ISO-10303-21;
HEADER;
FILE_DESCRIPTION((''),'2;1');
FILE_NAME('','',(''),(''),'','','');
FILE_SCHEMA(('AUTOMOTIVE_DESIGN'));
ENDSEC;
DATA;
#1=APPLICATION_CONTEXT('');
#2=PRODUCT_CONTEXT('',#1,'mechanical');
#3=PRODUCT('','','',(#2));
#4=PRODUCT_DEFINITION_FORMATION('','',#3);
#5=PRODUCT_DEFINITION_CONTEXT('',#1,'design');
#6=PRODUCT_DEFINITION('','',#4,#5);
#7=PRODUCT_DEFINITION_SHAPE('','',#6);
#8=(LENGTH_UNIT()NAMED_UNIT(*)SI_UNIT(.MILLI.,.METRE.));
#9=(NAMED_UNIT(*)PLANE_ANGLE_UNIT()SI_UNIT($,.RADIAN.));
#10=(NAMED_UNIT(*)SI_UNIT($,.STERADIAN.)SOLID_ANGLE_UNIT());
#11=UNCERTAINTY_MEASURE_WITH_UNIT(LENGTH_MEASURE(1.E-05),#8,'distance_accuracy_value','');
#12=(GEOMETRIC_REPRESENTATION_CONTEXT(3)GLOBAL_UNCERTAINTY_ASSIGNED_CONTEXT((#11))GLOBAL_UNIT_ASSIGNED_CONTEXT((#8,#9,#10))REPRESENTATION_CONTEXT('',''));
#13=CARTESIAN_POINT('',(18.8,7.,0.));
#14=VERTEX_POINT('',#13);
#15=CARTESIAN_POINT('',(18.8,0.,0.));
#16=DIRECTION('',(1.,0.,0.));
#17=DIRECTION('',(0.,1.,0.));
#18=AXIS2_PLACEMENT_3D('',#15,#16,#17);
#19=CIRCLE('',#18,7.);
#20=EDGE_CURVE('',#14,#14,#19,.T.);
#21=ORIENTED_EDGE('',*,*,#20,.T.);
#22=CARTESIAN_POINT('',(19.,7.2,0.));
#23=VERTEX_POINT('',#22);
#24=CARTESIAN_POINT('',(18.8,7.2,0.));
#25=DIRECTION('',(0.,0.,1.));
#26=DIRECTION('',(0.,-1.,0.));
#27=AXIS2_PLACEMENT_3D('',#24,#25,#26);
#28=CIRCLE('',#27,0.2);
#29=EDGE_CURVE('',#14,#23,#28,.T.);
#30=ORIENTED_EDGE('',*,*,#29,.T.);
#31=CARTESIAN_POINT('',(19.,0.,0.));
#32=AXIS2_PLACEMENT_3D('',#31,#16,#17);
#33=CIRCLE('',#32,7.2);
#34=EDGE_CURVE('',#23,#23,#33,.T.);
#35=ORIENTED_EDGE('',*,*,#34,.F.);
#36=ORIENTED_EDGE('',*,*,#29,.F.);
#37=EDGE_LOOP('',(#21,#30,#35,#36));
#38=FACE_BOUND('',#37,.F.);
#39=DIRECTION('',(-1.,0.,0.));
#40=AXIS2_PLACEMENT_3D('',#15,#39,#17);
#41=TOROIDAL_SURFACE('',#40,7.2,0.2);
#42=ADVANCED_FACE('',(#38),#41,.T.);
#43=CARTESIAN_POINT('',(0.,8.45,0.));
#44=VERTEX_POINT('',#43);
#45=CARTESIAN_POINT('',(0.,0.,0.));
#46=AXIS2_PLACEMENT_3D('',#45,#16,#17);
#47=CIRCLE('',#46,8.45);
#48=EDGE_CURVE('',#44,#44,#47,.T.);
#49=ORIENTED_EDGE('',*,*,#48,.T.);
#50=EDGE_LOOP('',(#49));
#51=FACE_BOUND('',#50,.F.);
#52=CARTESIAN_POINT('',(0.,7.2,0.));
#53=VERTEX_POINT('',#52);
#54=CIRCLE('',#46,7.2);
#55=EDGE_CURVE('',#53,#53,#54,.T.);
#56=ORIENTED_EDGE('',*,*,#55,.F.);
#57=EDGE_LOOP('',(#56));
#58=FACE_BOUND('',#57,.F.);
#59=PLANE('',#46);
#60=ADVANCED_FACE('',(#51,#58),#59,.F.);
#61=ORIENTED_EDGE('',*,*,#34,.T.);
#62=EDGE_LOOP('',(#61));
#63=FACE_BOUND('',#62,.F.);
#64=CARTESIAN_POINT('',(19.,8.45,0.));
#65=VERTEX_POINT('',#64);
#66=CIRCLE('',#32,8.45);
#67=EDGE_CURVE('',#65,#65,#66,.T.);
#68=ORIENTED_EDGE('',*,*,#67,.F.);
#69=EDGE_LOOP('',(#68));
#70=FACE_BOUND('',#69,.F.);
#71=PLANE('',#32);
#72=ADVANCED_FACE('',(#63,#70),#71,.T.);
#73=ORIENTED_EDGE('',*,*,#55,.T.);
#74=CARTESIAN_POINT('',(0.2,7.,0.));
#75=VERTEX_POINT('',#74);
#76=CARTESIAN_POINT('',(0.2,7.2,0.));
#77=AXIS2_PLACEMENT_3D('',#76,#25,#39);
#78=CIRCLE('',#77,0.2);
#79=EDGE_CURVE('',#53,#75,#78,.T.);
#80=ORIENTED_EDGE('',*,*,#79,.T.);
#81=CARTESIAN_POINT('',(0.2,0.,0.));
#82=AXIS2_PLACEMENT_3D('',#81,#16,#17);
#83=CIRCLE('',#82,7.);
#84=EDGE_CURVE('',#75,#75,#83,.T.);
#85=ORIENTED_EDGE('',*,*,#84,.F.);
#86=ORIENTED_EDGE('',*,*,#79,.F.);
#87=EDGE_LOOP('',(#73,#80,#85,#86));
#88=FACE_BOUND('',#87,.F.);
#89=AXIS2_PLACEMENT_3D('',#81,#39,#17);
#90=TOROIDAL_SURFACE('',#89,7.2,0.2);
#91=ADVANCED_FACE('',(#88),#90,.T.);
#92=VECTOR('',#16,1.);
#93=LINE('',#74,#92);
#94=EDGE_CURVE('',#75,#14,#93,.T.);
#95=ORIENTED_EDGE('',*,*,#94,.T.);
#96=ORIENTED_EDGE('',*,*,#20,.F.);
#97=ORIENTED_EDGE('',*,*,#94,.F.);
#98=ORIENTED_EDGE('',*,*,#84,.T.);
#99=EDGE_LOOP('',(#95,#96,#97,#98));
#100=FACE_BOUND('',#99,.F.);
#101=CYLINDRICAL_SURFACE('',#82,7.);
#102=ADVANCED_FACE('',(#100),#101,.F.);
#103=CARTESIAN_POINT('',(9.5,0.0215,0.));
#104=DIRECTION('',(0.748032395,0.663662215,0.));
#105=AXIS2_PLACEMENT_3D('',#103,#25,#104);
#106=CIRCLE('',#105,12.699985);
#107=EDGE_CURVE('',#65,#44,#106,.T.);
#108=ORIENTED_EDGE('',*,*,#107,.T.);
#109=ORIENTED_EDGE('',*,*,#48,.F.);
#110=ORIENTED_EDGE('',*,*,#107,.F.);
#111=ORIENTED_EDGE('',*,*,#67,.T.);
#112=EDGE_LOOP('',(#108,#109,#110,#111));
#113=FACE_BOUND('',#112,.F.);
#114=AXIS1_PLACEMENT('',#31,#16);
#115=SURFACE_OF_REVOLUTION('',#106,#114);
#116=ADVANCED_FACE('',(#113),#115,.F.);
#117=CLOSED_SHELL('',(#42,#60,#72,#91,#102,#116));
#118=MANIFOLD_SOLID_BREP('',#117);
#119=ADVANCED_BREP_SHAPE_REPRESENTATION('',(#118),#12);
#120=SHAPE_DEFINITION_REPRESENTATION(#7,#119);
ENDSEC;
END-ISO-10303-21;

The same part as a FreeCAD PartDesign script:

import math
import FreeCAD as App
import Part
import Sketcher

doc = App.newDocument("Part")
body = doc.addObject("PartDesign::Body", "Body")

sketch1 = body.newObject("Sketcher::SketchObject", "Sketch")
sketch1.AttachmentSupport = (doc.getObject("XY_Plane"), [""])
sketch1.MapMode = "FlatFace"
sketch1.addGeometry(Part.LineSegment(App.Vector(0, 8.45, 0), App.Vector(0, 7.2, 0)), False)
sketch1.addGeometry(Part.ArcOfCircle(Part.Circle(App.Vector(0.2, 7.2, 0), App.Vector(0, 0, 1), 0.2), math.radians(180), math.radians(270)), False)
sketch1.addGeometry(Part.LineSegment(App.Vector(0.2, 7, 0), App.Vector(18.8, 7, 0)), False)
sketch1.addGeometry(Part.ArcOfCircle(Part.Circle(App.Vector(18.8, 7.2, 0), App.Vector(0, 0, 1), 0.2), math.radians(-90), math.radians(0)), False)
sketch1.addGeometry(Part.LineSegment(App.Vector(19, 7.2, 0), App.Vector(19, 8.45, 0)), False)
sketch1.addGeometry(Part.ArcOfCircle(Part.Circle(App.Vector(9.5, 0.0215, 0), App.Vector(0, 0, 1), 12.699985), math.radians(41.579776), math.radians(138.420224)), False)
sketch1.addConstraint(Sketcher.Constraint("Tangent", 0, 2, 1, 1))
sketch1.addConstraint(Sketcher.Constraint("Tangent", 1, 2, 2, 1))
sketch1.addConstraint(Sketcher.Constraint("Tangent", 2, 2, 3, 1))
sketch1.addConstraint(Sketcher.Constraint("Tangent", 3, 2, 4, 1))
sketch1.addConstraint(Sketcher.Constraint("Coincident", 4, 2, 5, 1))
sketch1.addConstraint(Sketcher.Constraint("Coincident", 5, 2, 0, 1))
sketch1.addConstraint(Sketcher.Constraint("Vertical", 0))
sketch1.addConstraint(Sketcher.Constraint("Horizontal", 2))
sketch1.addConstraint(Sketcher.Constraint("Vertical", 4))
sketch1.addConstraint(Sketcher.Constraint("Equal", 1, 3))
sketch1.addConstraint(Sketcher.Constraint("PointOnObject", 0, 2, -2))
sketch1.addConstraint(Sketcher.Constraint("Horizontal", 4, 2, 5, 2))
sketch1.addConstraint(Sketcher.Constraint("Radius", 1, 0.2))
sketch1.addConstraint(Sketcher.Constraint("Radius", 5, 12.7))
sketch1.addConstraint(Sketcher.Constraint("DistanceX", 2, 1, 2, 2, 18.6))
sketch1.addConstraint(Sketcher.Constraint("DistanceY", -1, 1, 1, 2, 7.0))
sketch1.addConstraint(Sketcher.Constraint("DistanceY", 0, 2, 0, 1, 1.25))
revolution = body.newObject("PartDesign::Revolution", "Revolution")
revolution.Profile = sketch1
revolution.ReferenceAxis = (sketch1, ["H_Axis"])
revolution.Angle = 360

doc.recompute()
